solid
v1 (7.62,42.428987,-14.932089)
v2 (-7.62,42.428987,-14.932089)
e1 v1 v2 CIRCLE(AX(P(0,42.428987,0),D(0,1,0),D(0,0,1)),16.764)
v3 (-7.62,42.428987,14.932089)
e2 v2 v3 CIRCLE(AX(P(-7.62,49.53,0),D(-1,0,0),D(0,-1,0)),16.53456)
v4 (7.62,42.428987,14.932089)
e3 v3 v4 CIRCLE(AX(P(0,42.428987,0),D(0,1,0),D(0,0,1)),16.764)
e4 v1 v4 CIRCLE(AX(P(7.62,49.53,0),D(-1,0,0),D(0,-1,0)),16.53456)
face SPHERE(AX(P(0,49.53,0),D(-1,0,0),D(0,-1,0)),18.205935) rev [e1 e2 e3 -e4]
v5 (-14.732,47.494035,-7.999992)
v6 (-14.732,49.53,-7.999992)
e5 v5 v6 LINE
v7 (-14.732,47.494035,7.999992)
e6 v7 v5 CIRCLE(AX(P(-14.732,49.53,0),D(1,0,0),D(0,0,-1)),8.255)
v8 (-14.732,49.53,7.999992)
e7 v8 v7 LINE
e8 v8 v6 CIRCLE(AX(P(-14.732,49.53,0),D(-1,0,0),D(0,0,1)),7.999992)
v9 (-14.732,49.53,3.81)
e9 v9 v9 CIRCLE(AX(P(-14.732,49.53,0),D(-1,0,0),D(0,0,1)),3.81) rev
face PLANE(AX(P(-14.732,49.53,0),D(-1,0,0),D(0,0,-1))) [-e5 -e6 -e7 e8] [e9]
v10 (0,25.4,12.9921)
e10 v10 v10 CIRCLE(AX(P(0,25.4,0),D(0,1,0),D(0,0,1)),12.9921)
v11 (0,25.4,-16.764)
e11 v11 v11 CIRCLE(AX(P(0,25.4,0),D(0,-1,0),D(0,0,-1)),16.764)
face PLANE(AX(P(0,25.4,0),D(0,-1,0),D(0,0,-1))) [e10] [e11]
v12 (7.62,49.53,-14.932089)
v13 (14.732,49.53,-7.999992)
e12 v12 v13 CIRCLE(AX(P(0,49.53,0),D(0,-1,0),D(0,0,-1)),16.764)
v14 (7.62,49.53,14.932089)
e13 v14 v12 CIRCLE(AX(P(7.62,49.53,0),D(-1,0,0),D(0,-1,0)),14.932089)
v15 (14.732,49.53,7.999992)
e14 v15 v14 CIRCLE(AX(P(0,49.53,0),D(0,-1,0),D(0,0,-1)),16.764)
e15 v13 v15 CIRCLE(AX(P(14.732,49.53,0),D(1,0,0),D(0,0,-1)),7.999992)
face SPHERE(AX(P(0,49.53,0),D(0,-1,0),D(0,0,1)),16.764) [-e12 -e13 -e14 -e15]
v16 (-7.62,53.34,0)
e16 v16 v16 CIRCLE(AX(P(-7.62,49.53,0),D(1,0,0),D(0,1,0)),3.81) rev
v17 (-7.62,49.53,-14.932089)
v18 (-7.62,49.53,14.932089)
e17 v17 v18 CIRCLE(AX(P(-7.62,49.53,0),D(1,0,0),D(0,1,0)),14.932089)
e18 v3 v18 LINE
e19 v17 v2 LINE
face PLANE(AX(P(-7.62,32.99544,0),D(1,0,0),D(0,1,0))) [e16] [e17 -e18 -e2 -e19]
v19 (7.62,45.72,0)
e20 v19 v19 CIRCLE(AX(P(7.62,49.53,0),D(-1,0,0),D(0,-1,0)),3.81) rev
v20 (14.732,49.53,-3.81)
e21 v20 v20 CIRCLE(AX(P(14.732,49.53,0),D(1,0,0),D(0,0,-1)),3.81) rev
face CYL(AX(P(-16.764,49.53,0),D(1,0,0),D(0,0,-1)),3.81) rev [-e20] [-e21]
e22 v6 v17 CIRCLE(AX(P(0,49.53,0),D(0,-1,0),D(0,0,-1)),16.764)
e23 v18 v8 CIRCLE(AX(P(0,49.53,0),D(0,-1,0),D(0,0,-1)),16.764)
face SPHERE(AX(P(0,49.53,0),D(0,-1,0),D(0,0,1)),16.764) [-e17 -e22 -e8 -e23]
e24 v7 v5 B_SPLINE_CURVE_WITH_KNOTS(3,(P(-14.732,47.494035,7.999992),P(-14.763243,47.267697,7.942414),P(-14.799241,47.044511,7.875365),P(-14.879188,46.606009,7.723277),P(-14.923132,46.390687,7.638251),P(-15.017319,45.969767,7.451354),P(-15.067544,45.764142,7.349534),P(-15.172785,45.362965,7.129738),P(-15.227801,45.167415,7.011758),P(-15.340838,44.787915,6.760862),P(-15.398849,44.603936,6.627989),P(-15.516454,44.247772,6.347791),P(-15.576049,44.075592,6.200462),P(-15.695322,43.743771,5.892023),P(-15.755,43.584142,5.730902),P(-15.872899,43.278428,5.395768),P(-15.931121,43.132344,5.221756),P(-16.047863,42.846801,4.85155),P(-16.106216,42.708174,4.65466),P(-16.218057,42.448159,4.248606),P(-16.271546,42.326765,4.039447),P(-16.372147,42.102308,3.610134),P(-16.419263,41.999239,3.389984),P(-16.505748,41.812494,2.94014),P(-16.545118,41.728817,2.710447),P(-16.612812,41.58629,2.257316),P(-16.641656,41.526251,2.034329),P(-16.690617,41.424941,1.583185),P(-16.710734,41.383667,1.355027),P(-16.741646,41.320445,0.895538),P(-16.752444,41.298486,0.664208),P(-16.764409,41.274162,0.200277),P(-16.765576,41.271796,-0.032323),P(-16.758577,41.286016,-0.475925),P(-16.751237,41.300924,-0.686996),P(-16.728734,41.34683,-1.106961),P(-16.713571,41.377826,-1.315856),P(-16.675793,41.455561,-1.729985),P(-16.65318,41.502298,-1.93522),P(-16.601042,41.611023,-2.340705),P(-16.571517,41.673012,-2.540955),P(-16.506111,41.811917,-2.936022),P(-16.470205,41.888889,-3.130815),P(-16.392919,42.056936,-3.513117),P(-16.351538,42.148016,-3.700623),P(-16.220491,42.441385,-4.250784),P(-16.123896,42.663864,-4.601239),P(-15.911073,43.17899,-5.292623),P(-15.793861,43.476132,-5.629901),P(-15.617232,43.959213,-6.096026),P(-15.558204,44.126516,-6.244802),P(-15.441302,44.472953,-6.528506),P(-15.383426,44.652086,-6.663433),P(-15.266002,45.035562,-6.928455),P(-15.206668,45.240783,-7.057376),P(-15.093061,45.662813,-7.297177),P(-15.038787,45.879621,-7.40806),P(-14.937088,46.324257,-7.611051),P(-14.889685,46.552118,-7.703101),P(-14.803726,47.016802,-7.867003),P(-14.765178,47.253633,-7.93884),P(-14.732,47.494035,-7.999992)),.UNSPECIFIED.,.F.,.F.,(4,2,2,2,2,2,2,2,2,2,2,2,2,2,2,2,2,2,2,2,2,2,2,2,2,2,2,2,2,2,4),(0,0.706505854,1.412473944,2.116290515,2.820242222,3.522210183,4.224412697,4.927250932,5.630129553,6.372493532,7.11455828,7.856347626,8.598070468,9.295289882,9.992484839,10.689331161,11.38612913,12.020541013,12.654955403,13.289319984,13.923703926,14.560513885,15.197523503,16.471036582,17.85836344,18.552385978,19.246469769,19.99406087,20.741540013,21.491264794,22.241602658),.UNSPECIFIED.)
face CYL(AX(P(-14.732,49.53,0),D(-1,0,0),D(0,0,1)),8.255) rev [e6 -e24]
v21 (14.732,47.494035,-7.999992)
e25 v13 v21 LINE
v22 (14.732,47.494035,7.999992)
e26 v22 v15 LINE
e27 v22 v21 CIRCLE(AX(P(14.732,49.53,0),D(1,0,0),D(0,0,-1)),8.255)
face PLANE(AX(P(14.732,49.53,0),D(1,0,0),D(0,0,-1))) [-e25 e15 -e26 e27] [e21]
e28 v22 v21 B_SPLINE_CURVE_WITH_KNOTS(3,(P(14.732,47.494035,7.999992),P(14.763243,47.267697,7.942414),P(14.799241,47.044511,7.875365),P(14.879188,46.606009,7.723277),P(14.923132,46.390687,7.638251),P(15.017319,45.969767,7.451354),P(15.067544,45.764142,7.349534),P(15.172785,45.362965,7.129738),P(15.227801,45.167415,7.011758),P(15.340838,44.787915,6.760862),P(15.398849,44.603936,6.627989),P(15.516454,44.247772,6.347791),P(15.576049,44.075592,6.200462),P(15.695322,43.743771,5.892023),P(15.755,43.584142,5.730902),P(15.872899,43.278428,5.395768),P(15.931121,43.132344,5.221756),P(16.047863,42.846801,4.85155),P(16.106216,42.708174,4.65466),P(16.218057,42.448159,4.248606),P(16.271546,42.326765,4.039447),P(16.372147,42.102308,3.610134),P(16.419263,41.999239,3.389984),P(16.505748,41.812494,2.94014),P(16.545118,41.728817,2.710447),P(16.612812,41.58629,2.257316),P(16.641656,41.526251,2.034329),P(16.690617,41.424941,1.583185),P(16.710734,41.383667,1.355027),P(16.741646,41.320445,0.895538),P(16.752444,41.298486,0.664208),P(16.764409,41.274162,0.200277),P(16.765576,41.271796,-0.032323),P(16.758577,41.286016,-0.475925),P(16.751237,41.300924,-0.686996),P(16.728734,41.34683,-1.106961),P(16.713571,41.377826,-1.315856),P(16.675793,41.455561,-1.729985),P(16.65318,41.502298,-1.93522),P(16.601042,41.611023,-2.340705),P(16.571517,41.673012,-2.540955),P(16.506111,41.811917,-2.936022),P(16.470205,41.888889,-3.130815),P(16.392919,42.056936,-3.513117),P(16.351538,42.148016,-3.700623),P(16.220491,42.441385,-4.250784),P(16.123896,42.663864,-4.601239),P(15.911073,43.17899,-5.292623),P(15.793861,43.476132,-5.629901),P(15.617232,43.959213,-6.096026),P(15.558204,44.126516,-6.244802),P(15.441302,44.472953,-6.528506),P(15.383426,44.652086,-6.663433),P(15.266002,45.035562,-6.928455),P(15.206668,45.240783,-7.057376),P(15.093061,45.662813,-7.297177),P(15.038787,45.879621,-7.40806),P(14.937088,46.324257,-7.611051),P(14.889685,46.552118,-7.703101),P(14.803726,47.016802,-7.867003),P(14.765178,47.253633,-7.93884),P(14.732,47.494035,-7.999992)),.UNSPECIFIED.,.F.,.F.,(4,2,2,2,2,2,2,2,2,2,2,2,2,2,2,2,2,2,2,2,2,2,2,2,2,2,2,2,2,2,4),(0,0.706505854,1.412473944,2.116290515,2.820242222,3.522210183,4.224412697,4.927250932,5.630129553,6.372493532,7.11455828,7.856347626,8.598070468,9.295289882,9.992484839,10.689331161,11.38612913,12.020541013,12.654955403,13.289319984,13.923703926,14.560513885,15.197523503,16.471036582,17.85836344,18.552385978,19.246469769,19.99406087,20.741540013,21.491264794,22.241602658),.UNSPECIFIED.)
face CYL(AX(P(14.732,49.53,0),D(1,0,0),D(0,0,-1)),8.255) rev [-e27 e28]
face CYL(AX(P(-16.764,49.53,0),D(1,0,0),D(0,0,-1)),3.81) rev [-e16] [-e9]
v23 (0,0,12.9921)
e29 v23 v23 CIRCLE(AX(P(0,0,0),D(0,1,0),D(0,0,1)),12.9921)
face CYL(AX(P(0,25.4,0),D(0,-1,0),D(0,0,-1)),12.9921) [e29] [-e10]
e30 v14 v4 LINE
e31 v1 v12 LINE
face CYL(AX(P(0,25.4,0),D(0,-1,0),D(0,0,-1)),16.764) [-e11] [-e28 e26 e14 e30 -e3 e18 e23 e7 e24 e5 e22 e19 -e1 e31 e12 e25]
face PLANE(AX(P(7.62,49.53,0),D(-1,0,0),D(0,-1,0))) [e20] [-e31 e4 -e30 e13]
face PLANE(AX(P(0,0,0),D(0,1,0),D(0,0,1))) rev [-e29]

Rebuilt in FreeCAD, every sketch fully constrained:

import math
import FreeCAD as App
import Part
import Sketcher
from FreeCAD import Vector
Q = App.Units.Quantity

doc = App.newDocument("Part")
body = doc.addObject("PartDesign::Body", "Body")

# Sketch on XZ plane
sketch1 = doc.addObject("Sketcher::SketchObject", "Sketch")
body.addObject(sketch1)
sketch1.AttachmentSupport = (doc.XZ_Plane, [""])
sketch1.MapMode = "FlatFace"
sketch1.addGeometry(Part.Circle(Vector(0, 0, 0), Vector(0, 0, 1), 13), False)
sketch1.addConstraint(Sketcher.Constraint("Coincident", 0, 3, -1, 1))
sketch1.addConstraint(Sketcher.Constraint("Diameter", 0, Q("1.023 in")))
pad1 = doc.addObject("PartDesign::Pad", "Pad")
body.addObject(pad1)
pad1.Profile = sketch1
pad1.Length = Q("1 in")
pad1.Reversed = True

# Sketch on YZ plane
sketch2 = doc.addObject("Sketcher::SketchObject", "Sketch001")
body.addObject(sketch2)
sketch2.AttachmentSupport = (doc.YZ_Plane, [""])
sketch2.MapMode = "FlatFace"
sketch2.addGeometry(Part.LineSegment(Vector(50, 17, 0), Vector(25, 17, 0)), False)
sketch2.addGeometry(Part.LineSegment(Vector(25, 17, 0), Vector(25, 0, 0)), False)
sketch2.addGeometry(Part.LineSegment(Vector(25, 0, 0), Vector(66, 0, 0)), False)
sketch2.addGeometry(Part.ArcOfCircle(Part.Circle(Vector(50, 0, 0), Vector(0, 0, 1), 17), math.radians(0), math.radians(90)), False)
sketch2.addConstraint(Sketcher.Constraint("Coincident", 0, 2, 1, 1))
sketch2.addConstraint(Sketcher.Constraint("Coincident", 1, 2, 2, 1))
sketch2.addConstraint(Sketcher.Constraint("Coincident", 2, 2, 3, 1))
sketch2.addConstraint(Sketcher.Constraint("Tangent", 3, 2, 0, 1))
sketch2.addConstraint(Sketcher.Constraint("Horizontal", 0))
sketch2.addConstraint(Sketcher.Constraint("Vertical", 1))
sketch2.addConstraint(Sketcher.Constraint("Horizontal", 2))
sketch2.addConstraint(Sketcher.Constraint("PointOnObject", 3, 3, -1))
sketch2.addConstraint(Sketcher.Constraint("PointOnObject", 1, 2, -1))
sketch2.addConstraint(Sketcher.Constraint("Radius", 3, Q("0.66 in")))
sketch2.addConstraint(Sketcher.Constraint("DistanceX", -1, 1, 0, 2, Q("1 in")))
sketch2.addConstraint(Sketcher.Constraint("DistanceX", 0, 2, 0, 1, Q("0.95 in")))
revolution = doc.addObject("PartDesign::Revolution", "Revolution")
body.addObject(revolution)
revolution.Profile = sketch2
revolution.ReferenceAxis = (sketch2, ["H_Axis"])
revolution.Angle = 360

# Sketch on YZ plane
sketch3 = doc.addObject("Sketcher::SketchObject", "Sketch002")
body.addObject(sketch3)
sketch3.AttachmentSupport = (doc.YZ_Plane, [""])
sketch3.MapMode = "FlatFace"
sketch3.addGeometry(Part.Circle(Vector(49.5, 0, 0), Vector(0, 0, 1), 3.8), False)
sketch3.addConstraint(Sketcher.Constraint("PointOnObject", 0, 3, -1))
sketch3.addConstraint(Sketcher.Constraint("Diameter", 0, Q("0.3 in")))
sketch3.addConstraint(Sketcher.Constraint("DistanceX", -1, 1, 0, 3, Q("1.95 in")))
pocket1 = doc.addObject("PartDesign::Pocket", "Pocket")
body.addObject(pocket1)
pocket1.Profile = sketch3
pocket1.Type = "ThroughAll"
pocket1.Midplane = True

# Sketch on XY plane
sketch4 = doc.addObject("Sketcher::SketchObject", "Sketch003")
body.addObject(sketch4)
sketch4.AttachmentSupport = (doc.XY_Plane, [""])
sketch4.MapMode = "FlatFace"
sketch4.addGeometry(Part.LineSegment(Vector(-8, 50, 0), Vector(-8, 33, 0)), False)
sketch4.addGeometry(Part.ArcOfCircle(Part.Circle(Vector(0, 50, 0), Vector(0, 0, 1), 18), math.radians(-115), math.radians(-65)), False)
sketch4.addGeometry(Part.LineSegment(Vector(8, 33, 0), Vector(8, 50, 0)), False)
sketch4.addGeometry(Part.LineSegment(Vector(8, 50, 0), Vector(-8, 50, 0)), False)
sketch4.addGeometry(Part.LineSegment(Vector(-8, 50, 0), Vector(8, 50, 0)), True)  # axis
sketch4.addConstraint(Sketcher.Constraint("Coincident", 0, 2, 1, 1))
sketch4.addConstraint(Sketcher.Constraint("Coincident", 1, 2, 2, 1))
sketch4.addConstraint(Sketcher.Constraint("Coincident", 2, 2, 3, 1))
sketch4.addConstraint(Sketcher.Constraint("Coincident", 3, 2, 0, 1))
sketch4.addConstraint(Sketcher.Constraint("Vertical", 0))
sketch4.addConstraint(Sketcher.Constraint("Vertical", 2))
sketch4.addConstraint(Sketcher.Constraint("Horizontal", 3))
sketch4.addConstraint(Sketcher.Constraint("Horizontal", 4))
sketch4.addConstraint(Sketcher.Constraint("Coincident", 4, 1, 3, 2))
sketch4.addConstraint(Sketcher.Constraint("Symmetric", 0, 2, 1, 2, -2))
sketch4.addConstraint(Sketcher.Constraint("Horizontal", 1, 3, 2, 2))
sketch4.addConstraint(Sketcher.Constraint("Vertical", 1, 2, 4, 2))
sketch4.addConstraint(Sketcher.Constraint("DistanceX", 3, 2, 3, 1, Q("0.6 in")))
sketch4.addConstraint(Sketcher.Constraint("DistanceY", -1, 1, 1, 3, Q("1.95 in")))
sketch4.addConstraint(Sketcher.Constraint("Radius", 1, 18.205935))
groove = doc.addObject("PartDesign::Groove", "Groove")
body.addObject(groove)
groove.Profile = sketch4
groove.ReferenceAxis = (sketch4, ["Axis0"])
groove.Angle = 360

# Sketch on YZ plane
sketch5 = doc.addObject("Sketcher::SketchObject", "Sketch004")
body.addObject(sketch5)
sketch5.AttachmentSupport = (doc.YZ_Plane, [""])
sketch5.MapMode = "FlatFace"
sketch5.AttachmentOffset = App.Placement(Vector(0, 0, 0.66 * 25.4), App.Rotation())
sketch5.addGeometry(Part.Circle(Vector(50, 0, 0), Vector(0, 0, 1), 8), False)
sketch5.addConstraint(Sketcher.Constraint("PointOnObject", 0, 3, -1))
sketch5.addConstraint(Sketcher.Constraint("Diameter", 0, Q("0.65 in")))
sketch5.addConstraint(Sketcher.Constraint("DistanceX", -1, 1, 0, 3, Q("1.95 in")))
pocket2 = doc.addObject("PartDesign::Pocket", "Pocket001")
body.addObject(pocket2)
pocket2.Profile = sketch5
pocket2.Length = Q("0.08 in")
doc.recompute()

mirrored = doc.addObject("PartDesign::Mirrored", "Mirrored")
body.addObject(mirrored)
mirrored.Originals = [pocket2]
mirrored.MirrorPlane = (doc.YZ_Plane, [""])
body.Tip = mirrored

doc.recompute()
